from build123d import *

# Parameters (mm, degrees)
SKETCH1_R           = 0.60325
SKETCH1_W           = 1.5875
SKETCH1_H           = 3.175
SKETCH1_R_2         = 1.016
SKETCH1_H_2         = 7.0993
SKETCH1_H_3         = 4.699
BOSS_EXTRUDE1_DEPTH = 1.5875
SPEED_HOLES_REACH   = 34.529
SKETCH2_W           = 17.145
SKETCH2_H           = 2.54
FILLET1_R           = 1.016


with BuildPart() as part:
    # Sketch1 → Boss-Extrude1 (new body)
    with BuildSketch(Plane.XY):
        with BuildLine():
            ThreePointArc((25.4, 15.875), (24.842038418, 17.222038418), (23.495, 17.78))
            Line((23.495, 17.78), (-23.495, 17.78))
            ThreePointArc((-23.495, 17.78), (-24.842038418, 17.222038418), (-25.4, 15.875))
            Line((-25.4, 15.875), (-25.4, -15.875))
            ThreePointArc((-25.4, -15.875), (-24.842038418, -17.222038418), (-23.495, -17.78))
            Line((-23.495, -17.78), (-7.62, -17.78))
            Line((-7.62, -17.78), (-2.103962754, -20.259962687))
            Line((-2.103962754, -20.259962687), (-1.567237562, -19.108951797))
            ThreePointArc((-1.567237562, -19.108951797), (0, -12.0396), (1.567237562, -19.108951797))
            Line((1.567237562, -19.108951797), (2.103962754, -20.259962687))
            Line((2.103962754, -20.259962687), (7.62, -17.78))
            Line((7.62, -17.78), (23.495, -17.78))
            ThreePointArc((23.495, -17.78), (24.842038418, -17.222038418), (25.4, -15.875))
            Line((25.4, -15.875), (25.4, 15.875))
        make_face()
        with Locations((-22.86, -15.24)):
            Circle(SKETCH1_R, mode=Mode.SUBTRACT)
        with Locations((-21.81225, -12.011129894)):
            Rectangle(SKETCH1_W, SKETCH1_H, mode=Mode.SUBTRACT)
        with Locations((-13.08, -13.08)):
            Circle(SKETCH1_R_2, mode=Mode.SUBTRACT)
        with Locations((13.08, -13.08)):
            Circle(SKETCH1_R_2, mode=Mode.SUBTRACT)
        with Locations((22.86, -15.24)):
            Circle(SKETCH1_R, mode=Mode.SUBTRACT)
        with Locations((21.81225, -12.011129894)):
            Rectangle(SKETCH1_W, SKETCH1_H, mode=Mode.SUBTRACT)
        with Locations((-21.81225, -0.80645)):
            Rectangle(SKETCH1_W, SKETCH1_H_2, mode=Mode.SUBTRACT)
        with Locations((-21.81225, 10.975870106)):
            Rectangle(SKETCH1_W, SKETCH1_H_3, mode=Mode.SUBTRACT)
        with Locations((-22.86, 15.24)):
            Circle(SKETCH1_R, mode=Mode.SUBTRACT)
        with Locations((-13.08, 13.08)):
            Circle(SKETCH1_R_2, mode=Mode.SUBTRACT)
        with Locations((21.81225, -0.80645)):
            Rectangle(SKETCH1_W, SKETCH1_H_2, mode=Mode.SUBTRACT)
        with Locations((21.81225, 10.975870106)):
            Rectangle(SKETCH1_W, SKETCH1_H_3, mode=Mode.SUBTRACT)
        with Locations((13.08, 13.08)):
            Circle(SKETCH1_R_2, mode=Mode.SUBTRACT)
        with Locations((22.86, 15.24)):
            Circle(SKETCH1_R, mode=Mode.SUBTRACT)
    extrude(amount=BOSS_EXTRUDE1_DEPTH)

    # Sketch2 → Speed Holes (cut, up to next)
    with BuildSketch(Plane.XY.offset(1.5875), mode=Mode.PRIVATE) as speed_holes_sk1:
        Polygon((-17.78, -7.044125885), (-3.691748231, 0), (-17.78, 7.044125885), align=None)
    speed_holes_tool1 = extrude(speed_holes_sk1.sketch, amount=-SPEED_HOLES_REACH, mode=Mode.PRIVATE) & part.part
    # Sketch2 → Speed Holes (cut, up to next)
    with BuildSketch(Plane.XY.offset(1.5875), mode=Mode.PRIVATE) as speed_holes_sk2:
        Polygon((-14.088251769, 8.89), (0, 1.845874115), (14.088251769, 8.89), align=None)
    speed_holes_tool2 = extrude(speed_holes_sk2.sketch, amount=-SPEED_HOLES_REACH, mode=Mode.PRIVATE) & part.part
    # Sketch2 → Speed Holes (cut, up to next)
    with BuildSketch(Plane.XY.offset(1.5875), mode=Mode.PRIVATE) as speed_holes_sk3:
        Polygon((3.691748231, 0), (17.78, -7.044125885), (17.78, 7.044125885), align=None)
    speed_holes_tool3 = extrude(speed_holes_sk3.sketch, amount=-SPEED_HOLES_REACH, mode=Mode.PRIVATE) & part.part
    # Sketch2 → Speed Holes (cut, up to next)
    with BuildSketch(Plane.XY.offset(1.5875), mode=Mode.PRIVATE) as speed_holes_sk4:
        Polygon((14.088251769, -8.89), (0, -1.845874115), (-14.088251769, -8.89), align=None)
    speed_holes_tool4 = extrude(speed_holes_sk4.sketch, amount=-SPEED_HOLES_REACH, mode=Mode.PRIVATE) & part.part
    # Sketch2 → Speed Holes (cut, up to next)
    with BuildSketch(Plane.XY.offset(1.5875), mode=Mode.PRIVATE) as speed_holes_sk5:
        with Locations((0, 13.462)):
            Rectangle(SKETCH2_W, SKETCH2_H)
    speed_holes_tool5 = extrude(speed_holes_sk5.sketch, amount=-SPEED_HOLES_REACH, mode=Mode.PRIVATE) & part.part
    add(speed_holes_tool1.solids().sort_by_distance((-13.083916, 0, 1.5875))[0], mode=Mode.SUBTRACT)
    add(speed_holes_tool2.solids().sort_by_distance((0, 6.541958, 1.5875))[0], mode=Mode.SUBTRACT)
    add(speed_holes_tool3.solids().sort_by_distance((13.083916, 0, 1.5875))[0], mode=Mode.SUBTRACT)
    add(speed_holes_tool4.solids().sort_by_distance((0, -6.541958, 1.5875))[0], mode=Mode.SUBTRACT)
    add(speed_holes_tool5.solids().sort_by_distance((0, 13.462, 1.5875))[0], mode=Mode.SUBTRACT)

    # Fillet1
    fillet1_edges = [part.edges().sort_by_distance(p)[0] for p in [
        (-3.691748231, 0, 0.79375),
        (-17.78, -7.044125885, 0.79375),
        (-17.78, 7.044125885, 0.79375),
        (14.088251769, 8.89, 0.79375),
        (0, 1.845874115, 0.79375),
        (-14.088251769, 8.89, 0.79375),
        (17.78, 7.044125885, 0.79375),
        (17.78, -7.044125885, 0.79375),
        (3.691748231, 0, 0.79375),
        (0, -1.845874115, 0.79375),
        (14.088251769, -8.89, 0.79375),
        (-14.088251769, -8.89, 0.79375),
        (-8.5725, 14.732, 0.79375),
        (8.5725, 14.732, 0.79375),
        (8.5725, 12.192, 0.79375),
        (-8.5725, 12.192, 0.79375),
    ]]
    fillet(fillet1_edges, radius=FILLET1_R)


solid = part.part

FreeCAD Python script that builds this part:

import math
import FreeCAD as App
import Part
import Sketcher
from FreeCAD import Vector
Q = App.Units.Quantity


def edges_at(feature, points):
    """Names of the edges that pass closest to the given points."""
    edges = feature.Shape.Edges
    near = lambda p: min(range(len(edges)), key=lambda i: edges[i].distToShape(Part.Vertex(*p))[0])
    return sorted({f"Edge{near(p) + 1}" for p in points})


def add_polygon(sketch, points):
    """Adds a closed chain of lines whose ends are joined by coincident constraints."""
    first, n = sketch.GeometryCount, len(points)
    for a, b in zip(points, points[1:] + points[:1]):
        sketch.addGeometry(Part.LineSegment(App.Vector(*a, 0), App.Vector(*b, 0)), False)
    for i in range(n):
        sketch.addConstraint(Sketcher.Constraint("Coincident", first + i, 2, first + (i + 1) % n, 1))

doc = App.newDocument("Part")
body = doc.addObject("PartDesign::Body", "Body")

sketch1 = doc.addObject("Sketcher::SketchObject", "Sketch")
body.addObject(sketch1)
sketch1.AttachmentSupport = (doc.XY_Plane, [""])
sketch1.MapMode = "FlatFace"
sketch1.addGeometry(Part.ArcOfCircle(Part.Circle(Vector(23.5, 15.9, 0), Vector(0, 0, 1), 1.9), math.radians(0), math.radians(90)), False)
sketch1.addGeometry(Part.LineSegment(Vector(23.5, 17.8, 0), Vector(-23.5, 17.8, 0)), False)
sketch1.addGeometry(Part.ArcOfCircle(Part.Circle(Vector(-23.5, 15.9, 0), Vector(0, 0, 1), 1.9), math.radians(90), math.radians(180)), False)
sketch1.addGeometry(Part.LineSegment(Vector(-25.4, 15.9, 0), Vector(-25.4, -15.9, 0)), False)
sketch1.addGeometry(Part.ArcOfCircle(Part.Circle(Vector(-23.5, -15.9, 0), Vector(0, 0, 1), 1.9), math.radians(-180), math.radians(-90)), False)
sketch1.addGeometry(Part.LineSegment(Vector(-23.5, -17.8, 0), Vector(-7.6, -17.8, 0)), False)
sketch1.addGeometry(Part.LineSegment(Vector(-7.6, -17.8, 0), Vector(-2.1, -20.3, 0)), False)
sketch1.addGeometry(Part.LineSegment(Vector(-2.1, -20.3, 0), Vector(-1.6, -19.1, 0)), False)
sketch1.addGeometry(Part.ArcOfCircle(Part.Circle(Vector(0, -15.7, 0), Vector(0, 0, 1), 3.7), math.radians(-65), math.radians(245)), False)
sketch1.addGeometry(Part.LineSegment(Vector(1.6, -19.1, 0), Vector(2.1, -20.3, 0)), False)
sketch1.addGeometry(Part.LineSegment(Vector(2.1, -20.3, 0), Vector(7.6, -17.8, 0)), False)
sketch1.addGeometry(Part.LineSegment(Vector(7.6, -17.8, 0), Vector(23.5, -17.8, 0)), False)
sketch1.addGeometry(Part.ArcOfCircle(Part.Circle(Vector(23.5, -15.9, 0), Vector(0, 0, 1), 1.9), math.radians(-90), math.radians(0)), False)
sketch1.addGeometry(Part.LineSegment(Vector(25.4, -15.9, 0), Vector(25.4, 15.9, 0)), False)
sketch1.addGeometry(Part.Circle(Vector(-22.9, -15.2, 0), Vector(0, 0, 1), 0.6), False)
add_polygon(sketch1, [(-21, -13.6), (-22.6, -13.6), (-22.6, -10.4), (-21, -10.4)])
sketch1.addGeometry(Part.Circle(Vector(-13.1, -13.1, 0), Vector(0, 0, 1), 1), False)
add_polygon(sketch1, [(-21, -4.4), (-22.6, -4.4), (-22.6, 2.7), (-21, 2.7)])
sketch1.addGeometry(Part.Circle(Vector(13.1, -13.1, 0), Vector(0, 0, 1), 1), False)
sketch1.addGeometry(Part.Circle(Vector(22.9, -15.2, 0), Vector(0, 0, 1), 0.6), False)
add_polygon(sketch1, [(22.6, -13.6), (21, -13.6), (21, -10.4), (22.6, -10.4)])
add_polygon(sketch1, [(22.6, -4.4), (21, -4.4), (21, 2.7), (22.6, 2.7)])
add_polygon(sketch1, [(-21, 8.6), (-22.6, 8.6), (-22.6, 13.3), (-21, 13.3)])
sketch1.addGeometry(Part.Circle(Vector(-22.9, 15.2, 0), Vector(0, 0, 1), 0.6), False)
sketch1.addGeometry(Part.Circle(Vector(-13.1, 13.1, 0), Vector(0, 0, 1), 1), False)
add_polygon(sketch1, [(22.6, 8.6), (21, 8.6), (21, 13.3), (22.6, 13.3)])
sketch1.addGeometry(Part.Circle(Vector(13.1, 13.1, 0), Vector(0, 0, 1), 1), False)
sketch1.addGeometry(Part.Circle(Vector(22.9, 15.2, 0), Vector(0, 0, 1), 0.6), False)
sketch1.addConstraint([
    Sketcher.Constraint("Tangent", 0, 2, 1, 1),
    Sketcher.Constraint("Tangent", 1, 2, 2, 1),
    Sketcher.Constraint("Tangent", 2, 2, 3, 1),
    Sketcher.Constraint("Tangent", 3, 2, 4, 1),
    Sketcher.Constraint("Tangent", 4, 2, 5, 1),
    Sketcher.Constraint("Coincident", 5, 2, 6, 1),
    Sketcher.Constraint("Coincident", 6, 2, 7, 1),
    Sketcher.Constraint("Coincident", 7, 2, 8, 2),
    Sketcher.Constraint("Coincident", 8, 1, 9, 1),
    Sketcher.Constraint("Coincident", 9, 2, 10, 1),
    Sketcher.Constraint("Coincident", 10, 2, 11, 1),
    Sketcher.Constraint("Tangent", 11, 2, 12, 1),
    Sketcher.Constraint("Tangent", 12, 2, 13, 1),
    Sketcher.Constraint("Tangent", 13, 2, 0, 1),
    Sketcher.Constraint("Horizontal", 1),
    Sketcher.Constraint("Vertical", 3),
    Sketcher.Constraint("Horizontal", 5),
    Sketcher.Constraint("Horizontal", 11),
    Sketcher.Constraint("Vertical", 13),
    Sketcher.Constraint("Horizontal", 15),
    Sketcher.Constraint("Vertical", 16),
    Sketcher.Constraint("Horizontal", 17),
    Sketcher.Constraint("Vertical", 18),
    Sketcher.Constraint("Horizontal", 20),
    Sketcher.Constraint("Vertical", 21),
    Sketcher.Constraint("Horizontal", 22),
    Sketcher.Constraint("Vertical", 23),
    Sketcher.Constraint("Horizontal", 26),
    Sketcher.Constraint("Vertical", 27),
    Sketcher.Constraint("Horizontal", 28),
    Sketcher.Constraint("Vertical", 29),
    Sketcher.Constraint("Horizontal", 30),
    Sketcher.Constraint("Vertical", 31),
    Sketcher.Constraint("Horizontal", 32),
    Sketcher.Constraint("Vertical", 33),
    Sketcher.Constraint("Horizontal", 34),
    Sketcher.Constraint("Vertical", 35),
    Sketcher.Constraint("Horizontal", 36),
    Sketcher.Constraint("Vertical", 37),
    Sketcher.Constraint("Horizontal", 40),
    Sketcher.Constraint("Vertical", 41),
    Sketcher.Constraint("Horizontal", 42),
    Sketcher.Constraint("Vertical", 43),
    Sketcher.Constraint("Equal", 0, 2),
    Sketcher.Constraint("Equal", 2, 4),
    Sketcher.Constraint("Equal", 4, 12),
    Sketcher.Constraint("Equal", 19, 24),
    Sketcher.Constraint("Equal", 14, 25),
    Sketcher.Constraint("Equal", 25, 38),
    Sketcher.Constraint("Equal", 24, 39),
    Sketcher.Constraint("Equal", 39, 44),
    Sketcher.Constraint("Equal", 38, 45),
    Sketcher.Constraint("Symmetric", 0, 3, 4, 3, -1, 1),
    Sketcher.Constraint("Symmetric", 25, 3, 38, 3, -1, 1),
    Sketcher.Constraint("Symmetric", 24, 3, 39, 3, -1, 1),
    Sketcher.Constraint("Symmetric", 19, 3, 44, 3, -1, 1),
    Sketcher.Constraint("Symmetric", 14, 3, 45, 3, -1, 1),
    Sketcher.Constraint("Symmetric", 19, 3, 24, 3, -2),
    Sketcher.Constraint("Symmetric", 14, 3, 25, 3, -2),
    Sketcher.Constraint("Symmetric", 7, 2, 8, 1, -2),
    Sketcher.Constraint("Symmetric", 6, 2, 9, 2, -2),
    Sketcher.Constraint("Symmetric", 5, 2, 10, 2, -2),
    Sketcher.Constraint("Symmetric", 18, 2, 26, 2, -2),
    Sketcher.Constraint("Symmetric", 16, 2, 28, 2, -2),
    Sketcher.Constraint("Symmetric", 23, 2, 30, 2, -2),
    Sketcher.Constraint("Symmetric", 21, 2, 32, 2, -2),
    Sketcher.Constraint("Symmetric", 37, 2, 40, 2, -2),
    Sketcher.Constraint("Symmetric", 35, 2, 42, 2, -2),
    Sketcher.Constraint("Vertical", 16, 2, 20, 2),
    Sketcher.Constraint("Vertical", 18, 2, 22, 2),
    Sketcher.Constraint("Vertical", 21, 2, 34, 2),
    Sketcher.Constraint("Vertical", 23, 2, 36, 2),
    Sketcher.Constraint("Diameter", 19, Q("0.08 in")),
    Sketcher.Constraint("DistanceX", 2, 2, -1, 1, Q("1 in")),
    Sketcher.Constraint("Angle", 7, Q("65 deg")),
    Sketcher.Constraint("Radius", 0, Q("0.075 in")),
    Sketcher.Constraint("Radius", 8, Q("0.146 in")),
    Sketcher.Constraint("Diameter", 14, Q("0.0475 in")),
    Sketcher.Constraint("DistanceY", 3, 2, 3, 1, Q("1.25 in")),
    Sketcher.Constraint("DistanceX", 14, 3, -1, 1, Q("0.9 in")),
    Sketcher.Constraint("DistanceY", 14, 3, -1, 1, Q("0.6 in")),
    Sketcher.Constraint("DistanceX", 5, 2, -1, 1, Q("0.3 in")),
    Sketcher.Constraint("Distance", 7, Q("0.05 in")),
    Sketcher.Constraint("DistanceX", 15, 2, 15, 1, Q("0.0625 in")),
    Sketcher.Constraint("DistanceY", 16, 1, 16, 2, Q("0.125 in")),
    Sketcher.Constraint("DistanceY", 35, 1, 35, 2, Q("0.185 in")),
    Sketcher.Constraint("DistanceY", 8, 3, -1, 1, Q("0.62 in")),
    Sketcher.Constraint("DistanceX", 15, 2, -1, 1, Q("0.89 in")),
    Sketcher.Constraint("DistanceY", 21, 1, 21, 2, Q("0.2795 in")),
    Sketcher.Constraint("DistanceY", -1, 1, 21, 2, Q("0.108 in")),
    Sketcher.Constraint("DistanceX", 19, 3, -1, 1, Q("13.08 mm")),
    Sketcher.Constraint("DistanceY", 19, 3, -1, 1, Q("13.08 mm")),
    Sketcher.Constraint("DistanceX", 6, 2, 8, 1, Q("3.6712 mm")),
    Sketcher.Constraint("DistanceY", 15, 2, -1, 1, Q("13.59863 mm")),
    Sketcher.Constraint("DistanceY", -1, 1, 34, 2, Q("8.62637 mm")),
])
pad1 = doc.addObject("PartDesign::Pad", "Pad")
body.addObject(pad1)
pad1.Profile = sketch1
pad1.Length = Q("0.0625 in")

sketch2 = doc.addObject("Sketcher::SketchObject", "Sketch001")
body.addObject(sketch2)
sketch2.AttachmentSupport = (doc.XY_Plane, [""])
sketch2.MapMode = "FlatFace"
sketch2.AttachmentOffset = App.Placement(Vector(0, 0, 0.0625 * 25.4), App.Rotation())
add_polygon(sketch2, [(-18, -7), (-4, 0), (-18, 7)])
sketch2.addConstraint([
    Sketcher.Constraint("Vertical", 2),
    Sketcher.Constraint("PointOnObject", 0, 2, -1),
    Sketcher.Constraint("Equal", 0, 1),
    Sketcher.Constraint("DistanceX", 1, 2, -1, 1, Q("0.7 in")),
    Sketcher.Constraint("DistanceY", 2, 2, 2, 1, Q("14.088252 mm")),
    Sketcher.Constraint("DistanceX", 0, 2, -1, 1, Q("3.691748 mm")),
])
pocket1 = doc.addObject("PartDesign::Pocket", "Pocket")
body.addObject(pocket1)
pocket1.Profile = sketch2
pocket1.Type = "UpToFirst"

sketch3 = doc.addObject("Sketcher::SketchObject", "Sketch002")
body.addObject(sketch3)
sketch3.AttachmentSupport = (doc.XY_Plane, [""])
sketch3.MapMode = "FlatFace"
sketch3.AttachmentOffset = App.Placement(Vector(0, 0, 0.0625 * 25.4), App.Rotation())
add_polygon(sketch3, [(-14, 9), (0, 2), (14, 9)])
sketch3.addConstraint([
    Sketcher.Constraint("Horizontal", 2),
    Sketcher.Constraint("PointOnObject", 0, 2, -2),
    Sketcher.Constraint("Equal", 0, 1),
    Sketcher.Constraint("DistanceY", -1, 1, 1, 2, Q("0.35 in")),
    Sketcher.Constraint("DistanceX", 2, 2, 2, 1, Q("28.176504 mm")),
    Sketcher.Constraint("Distance", 0, Q("15.751144 mm")),
])
pocket2 = doc.addObject("PartDesign::Pocket", "Pocket001")
body.addObject(pocket2)
pocket2.Profile = sketch3
pocket2.Type = "UpToFirst"

sketch4 = doc.addObject("Sketcher::SketchObject", "Sketch003")
body.addObject(sketch4)
sketch4.AttachmentSupport = (doc.XY_Plane, [""])
sketch4.MapMode = "FlatFace"
sketch4.AttachmentOffset = App.Placement(Vector(0, 0, 0.0625 * 25.4), App.Rotation())
add_polygon(sketch4, [(4, 0), (18, -7), (18, 7)])
sketch4.addConstraint([
    Sketcher.Constraint("Vertical", 1),
    Sketcher.Constraint("PointOnObject", 2, 2, -1),
    Sketcher.Constraint("Equal", 0, 2),
    Sketcher.Constraint("DistanceX", -1, 1, 0, 2, Q("0.7 in")),
    Sketcher.Constraint("DistanceY", 1, 1, 1, 2, Q("14.088252 mm")),
    Sketcher.Constraint("DistanceX", -1, 1, 2, 2, Q("3.691748 mm")),
])
pocket3 = doc.addObject("PartDesign::Pocket", "Pocket002")
body.addObject(pocket3)
pocket3.Profile = sketch4
pocket3.Type = "UpToFirst"

sketch5 = doc.addObject("Sketcher::SketchObject", "Sketch004")
body.addObject(sketch5)
sketch5.AttachmentSupport = (doc.XY_Plane, [""])
sketch5.MapMode = "FlatFace"
sketch5.AttachmentOffset = App.Placement(Vector(0, 0, 0.0625 * 25.4), App.Rotation())
add_polygon(sketch5, [(14, -9), (0, -2), (-14, -9)])
sketch5.addConstraint([
    Sketcher.Constraint("Horizontal", 2),
    Sketcher.Constraint("PointOnObject", 0, 2, -2),
    Sketcher.Constraint("Equal", 0, 1),
    Sketcher.Constraint("DistanceY", 1, 2, -1, 1, Q("0.35 in")),
    Sketcher.Constraint("DistanceX", 2, 1, 2, 2, Q("28.176504 mm")),
    Sketcher.Constraint("Distance", 0, Q("15.751144 mm")),
])
pocket4 = doc.addObject("PartDesign::Pocket", "Pocket003")
body.addObject(pocket4)
pocket4.Profile = sketch5
pocket4.Type = "UpToFirst"

sketch6 = doc.addObject("Sketcher::SketchObject", "Sketch005")
body.addObject(sketch6)
sketch6.AttachmentSupport = (doc.XY_Plane, [""])
sketch6.MapMode = "FlatFace"
sketch6.AttachmentOffset = App.Placement(Vector(0, 0, 0.0625 * 25.4), App.Rotation())
add_polygon(sketch6, [(-8.6, 14.7), (-8.6, 12.2), (8.6, 12.2), (8.6, 14.7)])
sketch6.addConstraint([
    Sketcher.Constraint("Vertical", 0),
    Sketcher.Constraint("Horizontal", 1),
    Sketcher.Constraint("Vertical", 2),
    Sketcher.Constraint("Horizontal", 3),
    Sketcher.Constraint("DistanceY", 0, 2, 0, 1, Q("0.1 in")),
    Sketcher.Constraint("DistanceX", 1, 1, 1, 2, Q("0.675 in")),
    Sketcher.Constraint("DistanceY", -1, 1, 0, 2, Q("0.48 in")),
    Sketcher.Constraint("DistanceX", 0, 2, -1, 1, Q("0.3375 in")),
])
pocket5 = doc.addObject("PartDesign::Pocket", "Pocket004")
body.addObject(pocket5)
pocket5.Profile = sketch6
pocket5.Type = "UpToFirst"
doc.recompute()

fillet = doc.addObject("PartDesign::Fillet", "Fillet")
body.addObject(fillet)
fillet.Base = (pocket5, edges_at(pocket5, [
    (-3.692, 0, 0.794),
    (-17.78, -7.044, 0.794),
    (-17.78, 7.044, 0.794),
    (14.088, 8.89, 0.794),
    (0, 1.846, 0.794),
    (-14.088, 8.89, 0.794),
    (17.78, 7.044, 0.794),
    (17.78, -7.044, 0.794),
    (3.692, 0, 0.794),
    (0, -1.846, 0.794),
    (14.088, -8.89, 0.794),
    (-14.088, -8.89, 0.794),
    (-8.572, 14.732, 0.794),
    (8.572, 14.732, 0.794),
    (8.572, 12.192, 0.794),
    (-8.572, 12.192, 0.794),
]))
fillet.Radius = Q("0.04 in")

doc.recompute()
